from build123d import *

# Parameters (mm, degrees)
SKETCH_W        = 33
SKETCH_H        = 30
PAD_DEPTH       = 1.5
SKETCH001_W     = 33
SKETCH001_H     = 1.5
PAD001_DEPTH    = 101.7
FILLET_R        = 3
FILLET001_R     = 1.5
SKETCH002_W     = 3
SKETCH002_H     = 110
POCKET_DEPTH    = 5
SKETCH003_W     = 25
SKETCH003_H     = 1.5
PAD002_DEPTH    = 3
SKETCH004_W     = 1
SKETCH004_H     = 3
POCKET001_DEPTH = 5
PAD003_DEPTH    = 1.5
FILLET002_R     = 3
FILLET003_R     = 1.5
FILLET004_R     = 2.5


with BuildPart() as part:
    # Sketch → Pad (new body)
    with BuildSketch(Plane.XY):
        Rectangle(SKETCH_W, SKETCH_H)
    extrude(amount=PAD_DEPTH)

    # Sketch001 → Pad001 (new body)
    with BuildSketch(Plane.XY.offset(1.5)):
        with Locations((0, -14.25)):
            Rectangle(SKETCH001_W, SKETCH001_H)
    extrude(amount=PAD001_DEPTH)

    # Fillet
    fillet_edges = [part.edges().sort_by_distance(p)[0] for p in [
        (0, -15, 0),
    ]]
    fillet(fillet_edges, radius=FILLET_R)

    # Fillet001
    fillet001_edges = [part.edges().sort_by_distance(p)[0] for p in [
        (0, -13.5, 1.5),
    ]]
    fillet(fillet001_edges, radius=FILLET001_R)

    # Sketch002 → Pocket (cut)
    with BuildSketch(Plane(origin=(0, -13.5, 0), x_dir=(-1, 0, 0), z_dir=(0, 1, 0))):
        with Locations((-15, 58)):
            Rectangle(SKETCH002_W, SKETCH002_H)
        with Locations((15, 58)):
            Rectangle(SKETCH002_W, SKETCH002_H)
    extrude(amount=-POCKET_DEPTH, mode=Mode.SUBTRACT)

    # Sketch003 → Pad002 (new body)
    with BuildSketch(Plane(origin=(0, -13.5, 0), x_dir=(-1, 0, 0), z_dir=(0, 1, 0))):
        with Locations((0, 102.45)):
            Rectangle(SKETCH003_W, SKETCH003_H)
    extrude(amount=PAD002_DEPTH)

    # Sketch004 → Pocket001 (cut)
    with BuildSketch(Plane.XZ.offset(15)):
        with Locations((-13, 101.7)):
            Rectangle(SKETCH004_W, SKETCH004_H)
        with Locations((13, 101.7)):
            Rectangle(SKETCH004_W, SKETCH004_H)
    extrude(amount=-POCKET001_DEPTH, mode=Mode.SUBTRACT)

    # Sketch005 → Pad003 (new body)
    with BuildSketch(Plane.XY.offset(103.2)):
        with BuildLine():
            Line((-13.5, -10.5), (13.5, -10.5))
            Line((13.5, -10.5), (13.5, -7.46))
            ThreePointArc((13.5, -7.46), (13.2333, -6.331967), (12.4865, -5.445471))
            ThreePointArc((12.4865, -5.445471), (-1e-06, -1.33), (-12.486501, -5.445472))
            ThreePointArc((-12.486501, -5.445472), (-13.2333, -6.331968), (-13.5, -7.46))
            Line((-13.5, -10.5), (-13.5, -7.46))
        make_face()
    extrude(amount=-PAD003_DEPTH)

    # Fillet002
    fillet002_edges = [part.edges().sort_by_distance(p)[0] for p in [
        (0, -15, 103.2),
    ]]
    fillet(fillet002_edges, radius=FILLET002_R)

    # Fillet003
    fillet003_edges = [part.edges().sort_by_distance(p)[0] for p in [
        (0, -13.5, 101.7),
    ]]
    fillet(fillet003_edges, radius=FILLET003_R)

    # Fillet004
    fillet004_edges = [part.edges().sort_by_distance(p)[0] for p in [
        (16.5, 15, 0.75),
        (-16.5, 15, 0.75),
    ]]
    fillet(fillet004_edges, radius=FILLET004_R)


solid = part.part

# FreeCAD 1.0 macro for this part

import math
import FreeCAD as App
import Part
import Sketcher
Q = App.Units.Quantity


def edges_at(feature, points):
    """Names of the edges that pass closest to the given points."""
    edges = feature.Shape.Edges
    near = lambda p: min(range(len(edges)), key=lambda i: edges[i].distToShape(Part.Vertex(*p))[0])
    return sorted({f"Edge{near(p) + 1}" for p in points})


def add_polygon(sketch, points):
    """Adds a closed chain of lines whose ends are joined by coincident constraints."""
    first, n = sketch.GeometryCount, len(points)
    for a, b in zip(points, points[1:] + points[:1]):
        sketch.addGeometry(Part.LineSegment(App.Vector(*a, 0), App.Vector(*b, 0)), False)
    for i in range(n):
        sketch.addConstraint(Sketcher.Constraint("Coincident", first + i, 2, first + (i + 1) % n, 1))

doc = App.newDocument("Part")
body = doc.addObject("PartDesign::Body", "Body")

# Sketch on XY plane
sketch1 = body.newObject("Sketcher::SketchObject", "Sketch")
sketch1.AttachmentSupport = (doc.getObject("XY_Plane"), [""])
sketch1.MapMode = "FlatFace"
add_polygon(sketch1, [(-16.5, 15), (-16.5, -15), (16.5, -15), (16.5, 15)])  # lines 0-3
sketch1.addConstraint([
    Sketcher.Constraint("Vertical", 0),
    Sketcher.Constraint("Horizontal", 1),
    Sketcher.Constraint("Vertical", 2),
    Sketcher.Constraint("Horizontal", 3),
    Sketcher.Constraint("Symmetric", 0, 2, 2, 2, -1, 1),
    Sketcher.Constraint("DistanceX", 1, 1, 1, 2, Q("33 mm")),
    Sketcher.Constraint("DistanceY", 0, 2, 0, 1, Q("30 mm")),
])
pad1 = body.newObject("PartDesign::Pad", "Pad")
pad1.Profile = sketch1
pad1.Length = 1.5

# Sketch on XY plane
sketch2 = body.newObject("Sketcher::SketchObject", "Sketch001")
sketch2.AttachmentSupport = (doc.getObject("XY_Plane"), [""])
sketch2.MapMode = "FlatFace"
sketch2.AttachmentOffset = App.Placement(App.Vector(0, 0, 1.5), App.Rotation())
add_polygon(sketch2, [(-16.5, -13.5), (-16.5, -15), (16.5, -15), (16.5, -13.5)])  # lines 0-3
sketch2.addConstraint([
    Sketcher.Constraint("Vertical", 0),
    Sketcher.Constraint("Horizontal", 1),
    Sketcher.Constraint("Vertical", 2),
    Sketcher.Constraint("Horizontal", 3),
    Sketcher.Constraint("DistanceX", 1, 1, 1, 2, Q("33 mm")),
    Sketcher.Constraint("DistanceY", 0, 2, 0, 1, Q("1.5 mm")),
    Sketcher.Constraint("DistanceY", 0, 2, -1, 1, Q("15 mm")),
    Sketcher.Constraint("DistanceX", 0, 2, -1, 1, Q("16.5 mm")),
])
pad2 = body.newObject("PartDesign::Pad", "Pad001")
pad2.Profile = sketch2
pad2.Length = 101.7
doc.recompute()

fillet = body.newObject("PartDesign::Fillet", "Fillet")
fillet.Base = (pad2, edges_at(pad2, [(0, -15, 0)]))
fillet.Radius = 3
doc.recompute()

fillet2 = body.newObject("PartDesign::Fillet", "Fillet001")
fillet2.Base = (fillet, edges_at(fillet, [(0, -13.5, 1.5)]))
fillet2.Radius = 1.5

# Sketch on XZ plane
sketch3 = body.newObject("Sketcher::SketchObject", "Sketch002")
sketch3.AttachmentSupport = (doc.getObject("XZ_Plane"), [""])
sketch3.MapMode = "FlatFace"
sketch3.AttachmentOffset = App.Placement(App.Vector(0, 0, 13.5), App.Rotation())
add_polygon(sketch3, [(16.5, 113), (16.5, 3), (13.5, 3), (13.5, 113)])  # lines 0-3
add_polygon(sketch3, [(-13.5, 113), (-13.5, 3), (-16.5, 3), (-16.5, 113)])  # lines 4-7
sketch3.addConstraint([
    Sketcher.Constraint("Vertical", 0),
    Sketcher.Constraint("Horizontal", 1),
    Sketcher.Constraint("Vertical", 2),
    Sketcher.Constraint("Horizontal", 3),
    Sketcher.Constraint("Vertical", 4),
    Sketcher.Constraint("Horizontal", 5),
    Sketcher.Constraint("Vertical", 6),
    Sketcher.Constraint("Horizontal", 7),
    Sketcher.Constraint("Symmetric", 1, 2, 4, 2, -2),
    Sketcher.Constraint("Symmetric", 3, 2, 6, 2, -2),
    Sketcher.Constraint("DistanceX", 1, 2, 1, 1, Q("3 mm")),
    Sketcher.Constraint("DistanceY", 0, 2, 0, 1, Q("110 mm")),
    Sketcher.Constraint("DistanceY", -1, 1, 0, 2, Q("3 mm")),
    Sketcher.Constraint("DistanceX", 4, 2, 1, 2, Q("27 mm")),
])
pocket1 = body.newObject("PartDesign::Pocket", "Pocket")
pocket1.Profile = sketch3
pocket1.Length = 5
pocket1.Reversed = True

# Sketch on XZ plane
sketch4 = body.newObject("Sketcher::SketchObject", "Sketch003")
sketch4.AttachmentSupport = (doc.getObject("XZ_Plane"), [""])
sketch4.MapMode = "FlatFace"
sketch4.AttachmentOffset = App.Placement(App.Vector(0, 0, 13.5), App.Rotation())
add_polygon(sketch4, [(12.5, 103.2), (12.5, 101.7), (-12.5, 101.7), (-12.5, 103.2)])  # lines 0-3
sketch4.addConstraint([
    Sketcher.Constraint("Vertical", 0),
    Sketcher.Constraint("Horizontal", 1),
    Sketcher.Constraint("Vertical", 2),
    Sketcher.Constraint("Horizontal", 3),
    Sketcher.Constraint("DistanceX", 1, 2, 1, 1, Q("25 mm")),
    Sketcher.Constraint("DistanceY", 0, 2, 0, 1, Q("1.5 mm")),
    Sketcher.Constraint("DistanceX", -1, 1, 0, 2, Q("12.5 mm")),
    Sketcher.Constraint("DistanceY", -1, 1, 0, 2, Q("101.7 mm")),
])
pad3 = body.newObject("PartDesign::Pad", "Pad002")
pad3.Profile = sketch4
pad3.Length = 3
pad3.Reversed = True

# Sketch on XZ plane
sketch5 = body.newObject("Sketcher::SketchObject", "Sketch004")
sketch5.AttachmentSupport = (doc.getObject("XZ_Plane"), [""])
sketch5.MapMode = "FlatFace"
sketch5.AttachmentOffset = App.Placement(App.Vector(0, 0, 15), App.Rotation())
add_polygon(sketch5, [(-13.5, 103.2), (-13.5, 100.2), (-12.5, 100.2), (-12.5, 103.2)])  # lines 0-3
add_polygon(sketch5, [(12.5, 103.2), (12.5, 100.2), (13.5, 100.2), (13.5, 103.2)])  # lines 4-7
sketch5.addConstraint([
    Sketcher.Constraint("Vertical", 0),
    Sketcher.Constraint("Horizontal", 1),
    Sketcher.Constraint("Vertical", 2),
    Sketcher.Constraint("Horizontal", 3),
    Sketcher.Constraint("Vertical", 4),
    Sketcher.Constraint("Horizontal", 5),
    Sketcher.Constraint("Vertical", 6),
    Sketcher.Constraint("Horizontal", 7),
    Sketcher.Constraint("Symmetric", 1, 2, 4, 2, -2),
    Sketcher.Constraint("Symmetric", 3, 2, 6, 2, -2),
    Sketcher.Constraint("DistanceX", 1, 1, 1, 2, Q("1 mm")),
    Sketcher.Constraint("DistanceY", 0, 2, 0, 1, Q("3 mm")),
    Sketcher.Constraint("DistanceX", 1, 2, 4, 2, Q("25 mm")),
    Sketcher.Constraint("DistanceY", -1, 1, 0, 2, Q("100.2 mm")),
])
pocket2 = body.newObject("PartDesign::Pocket", "Pocket001")
pocket2.Profile = sketch5
pocket2.Length = 5

# Sketch on XY plane
sketch6 = body.newObject("Sketcher::SketchObject", "Sketch005")
sketch6.AttachmentSupport = (doc.getObject("XY_Plane"), [""])
sketch6.MapMode = "FlatFace"
sketch6.AttachmentOffset = App.Placement(App.Vector(0, 0, 103.2), App.Rotation())
sketch6.addGeometry([
    Part.LineSegment(App.Vector(-13.5, -10.5, 0), App.Vector(13.5, -10.5, 0)),  # 0
    Part.LineSegment(App.Vector(13.5, -10.5, 0), App.Vector(13.5, -7.46, 0)),  # 1
    Part.ArcOfCircle(Part.Circle(App.Vector(11.000005, -7.455528, 0), App.Vector(0, 0, 1), 2.499999), math.radians(-0.1025), math.radians(53.516004)),  # 2
    Part.ArcOfCircle(Part.Circle(App.Vector(0, -22.33, 0), App.Vector(0, 0, 1), 21), math.radians(53.516217), math.radians(126.483788)),  # 3
    Part.ArcOfCircle(Part.Circle(App.Vector(-11.000002, -7.455529, 0), App.Vector(0, 0, 1), 2.500002), math.radians(126.484057), math.radians(180.102462)),  # 4
    Part.LineSegment(App.Vector(-13.5, -7.46, 0), App.Vector(-13.5, -10.5, 0)),  # 5
], False)
sketch6.addConstraint([
    Sketcher.Constraint("Coincident", 0, 2, 1, 1),
    Sketcher.Constraint("Coincident", 1, 2, 2, 1),
    Sketcher.Constraint("Coincident", 2, 2, 3, 1),
    Sketcher.Constraint("Coincident", 3, 2, 4, 1),
    Sketcher.Constraint("Coincident", 4, 2, 5, 1),
    Sketcher.Constraint("Coincident", 5, 2, 0, 1),
    Sketcher.Constraint("Horizontal", 0),
    Sketcher.Constraint("Vertical", 1),
    Sketcher.Constraint("Vertical", 5),
    Sketcher.Constraint("Symmetric", 2, 3, 4, 3, -2),
    Sketcher.Constraint("Symmetric", 2, 2, 3, 2, -2),
    Sketcher.Constraint("Horizontal", 1, 2, 4, 2),
    Sketcher.Constraint("Radius", 3, Q("21 mm")),
    Sketcher.Constraint("Radius", 2, Q("2.499999 mm")),
    Sketcher.Constraint("DistanceX", 0, 1, 0, 2, Q("27 mm")),
    Sketcher.Constraint("DistanceY", 1, 1, 1, 2, Q("3.04 mm")),
    Sketcher.Constraint("DistanceY", 0, 2, -1, 1, Q("10.5 mm")),
    Sketcher.Constraint("DistanceY", 3, 3, -1, 1, Q("22.33 mm")),
    Sketcher.Constraint("DistanceX", 3, 2, 2, 2, Q("24.973001 mm")),
])
pad4 = body.newObject("PartDesign::Pad", "Pad003")
pad4.Profile = sketch6
pad4.Length = 1.5
pad4.Reversed = True
doc.recompute()

fillet3 = body.newObject("PartDesign::Fillet", "Fillet002")
fillet3.Base = (pad4, edges_at(pad4, [(0, -15, 103.2)]))
fillet3.Radius = 3
doc.recompute()

fillet4 = body.newObject("PartDesign::Fillet", "Fillet003")
fillet4.Base = (fillet3, edges_at(fillet3, [(0, -13.5, 101.7)]))
fillet4.Radius = 1.5
doc.recompute()

fillet5 = body.newObject("PartDesign::Fillet", "Fillet004")
fillet5.Base = (fillet4, edges_at(fillet4, [(16.5, 15, 0.75), (-16.5, 15, 0.75)]))
fillet5.Radius = 2.5

doc.recompute()
